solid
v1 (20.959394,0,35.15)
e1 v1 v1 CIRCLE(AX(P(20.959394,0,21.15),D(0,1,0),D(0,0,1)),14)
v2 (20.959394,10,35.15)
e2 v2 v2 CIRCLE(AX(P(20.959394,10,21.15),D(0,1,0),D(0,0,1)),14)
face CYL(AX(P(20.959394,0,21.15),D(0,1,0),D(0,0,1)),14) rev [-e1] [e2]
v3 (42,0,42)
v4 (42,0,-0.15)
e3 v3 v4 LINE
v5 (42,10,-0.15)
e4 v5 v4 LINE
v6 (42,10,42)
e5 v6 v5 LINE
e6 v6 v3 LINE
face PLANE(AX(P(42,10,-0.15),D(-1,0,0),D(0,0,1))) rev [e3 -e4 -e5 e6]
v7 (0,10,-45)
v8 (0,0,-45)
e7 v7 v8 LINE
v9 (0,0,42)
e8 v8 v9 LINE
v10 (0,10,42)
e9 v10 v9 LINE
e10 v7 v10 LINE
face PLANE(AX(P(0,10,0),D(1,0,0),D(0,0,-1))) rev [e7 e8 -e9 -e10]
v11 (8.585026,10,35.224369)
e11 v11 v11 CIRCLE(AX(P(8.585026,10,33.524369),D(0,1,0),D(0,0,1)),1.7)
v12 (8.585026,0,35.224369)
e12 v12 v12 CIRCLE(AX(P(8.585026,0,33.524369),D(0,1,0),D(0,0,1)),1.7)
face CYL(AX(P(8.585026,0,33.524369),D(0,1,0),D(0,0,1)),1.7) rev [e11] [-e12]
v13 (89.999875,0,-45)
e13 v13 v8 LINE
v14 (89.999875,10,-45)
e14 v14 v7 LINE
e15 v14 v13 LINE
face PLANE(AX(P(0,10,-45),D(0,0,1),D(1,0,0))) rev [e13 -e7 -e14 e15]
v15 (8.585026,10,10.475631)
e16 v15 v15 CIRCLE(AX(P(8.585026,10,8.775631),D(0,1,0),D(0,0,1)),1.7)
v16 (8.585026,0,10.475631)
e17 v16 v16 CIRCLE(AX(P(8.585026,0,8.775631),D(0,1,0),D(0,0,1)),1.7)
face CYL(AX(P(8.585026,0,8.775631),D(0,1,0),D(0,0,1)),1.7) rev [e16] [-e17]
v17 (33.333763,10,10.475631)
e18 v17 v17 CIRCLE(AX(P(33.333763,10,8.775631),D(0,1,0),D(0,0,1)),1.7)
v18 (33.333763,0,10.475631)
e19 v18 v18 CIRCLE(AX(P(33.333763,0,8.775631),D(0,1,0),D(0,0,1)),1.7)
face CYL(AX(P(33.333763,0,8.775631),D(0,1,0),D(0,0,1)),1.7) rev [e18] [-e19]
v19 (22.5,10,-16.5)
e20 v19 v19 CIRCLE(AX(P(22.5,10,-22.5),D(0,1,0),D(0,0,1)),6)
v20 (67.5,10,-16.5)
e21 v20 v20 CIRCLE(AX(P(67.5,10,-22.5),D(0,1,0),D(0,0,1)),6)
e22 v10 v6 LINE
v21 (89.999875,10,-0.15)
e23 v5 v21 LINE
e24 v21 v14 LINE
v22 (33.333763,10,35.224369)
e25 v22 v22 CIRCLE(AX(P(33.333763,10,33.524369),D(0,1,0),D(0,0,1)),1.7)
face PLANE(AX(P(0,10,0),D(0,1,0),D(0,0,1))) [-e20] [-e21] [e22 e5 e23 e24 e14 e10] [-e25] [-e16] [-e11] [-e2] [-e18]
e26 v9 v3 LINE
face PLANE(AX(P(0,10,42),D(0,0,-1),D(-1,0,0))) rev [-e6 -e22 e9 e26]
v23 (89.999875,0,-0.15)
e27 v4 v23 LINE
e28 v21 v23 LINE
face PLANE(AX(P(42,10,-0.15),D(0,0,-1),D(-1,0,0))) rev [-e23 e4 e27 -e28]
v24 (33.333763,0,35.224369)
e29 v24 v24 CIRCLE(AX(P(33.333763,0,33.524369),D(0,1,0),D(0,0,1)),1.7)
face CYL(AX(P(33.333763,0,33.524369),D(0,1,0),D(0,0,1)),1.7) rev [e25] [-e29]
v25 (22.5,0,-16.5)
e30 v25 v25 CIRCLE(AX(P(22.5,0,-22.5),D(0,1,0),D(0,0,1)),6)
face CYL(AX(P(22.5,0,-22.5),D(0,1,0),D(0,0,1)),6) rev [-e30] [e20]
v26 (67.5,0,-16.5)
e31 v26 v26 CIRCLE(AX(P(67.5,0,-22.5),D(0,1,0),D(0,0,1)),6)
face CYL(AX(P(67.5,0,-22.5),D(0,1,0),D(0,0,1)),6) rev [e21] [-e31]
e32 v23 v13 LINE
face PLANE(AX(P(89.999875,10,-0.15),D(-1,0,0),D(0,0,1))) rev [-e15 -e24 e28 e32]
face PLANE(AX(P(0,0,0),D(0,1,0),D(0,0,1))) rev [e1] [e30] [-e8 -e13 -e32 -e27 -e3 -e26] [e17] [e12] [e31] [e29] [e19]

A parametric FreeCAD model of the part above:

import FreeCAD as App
import Part
import Sketcher

V = App.Vector
Q = App.Units.Quantity

doc = App.newDocument("Part")
body = doc.addObject("PartDesign::Body", "Body")

sketch1 = body.newObject("Sketcher::SketchObject", "Sketch")
sketch1.AttachmentSupport = (doc.getObject("XZ_Plane"), [""])
sketch1.MapMode = "FlatFace"
sketch1.addGeometry([
    Part.LineSegment(V(42, 0, 0), V(90, 0, 0)),
    Part.LineSegment(V(90, 0, 0), V(90, -45, 0)),
    Part.LineSegment(V(90, -45, 0), V(0, -45, 0)),
    Part.LineSegment(V(0, -45, 0), V(0, 42, 0)),
    Part.LineSegment(V(0, 42, 0), V(42, 42, 0)),
    Part.LineSegment(V(42, 42, 0), V(42, 0, 0)),
], False)
sketch1.addConstraint([
    Sketcher.Constraint("Coincident", 0, 2, 1, 1),
    Sketcher.Constraint("Coincident", 1, 2, 2, 1),
    Sketcher.Constraint("Coincident", 2, 2, 3, 1),
    Sketcher.Constraint("Coincident", 3, 2, 4, 1),
    Sketcher.Constraint("Coincident", 4, 2, 5, 1),
    Sketcher.Constraint("Coincident", 5, 2, 0, 1),
    Sketcher.Constraint("Horizontal", 0),
    Sketcher.Constraint("Vertical", 1),
    Sketcher.Constraint("Horizontal", 2),
    Sketcher.Constraint("Vertical", 3),
    Sketcher.Constraint("Horizontal", 4),
    Sketcher.Constraint("Vertical", 5),
    Sketcher.Constraint("PointOnObject", 2, 2, -2),
    Sketcher.Constraint("DistanceX", 4, 1, 4, 2, Q("42 mm")),
    Sketcher.Constraint("DistanceY", 3, 1, 3, 2, Q("87 mm")),
    Sketcher.Constraint("DistanceY", 1, 2, -1, 1, Q("45 mm")),
    Sketcher.Constraint("DistanceY", 1, 2, 1, 1, Q("44.85 mm")),
    Sketcher.Constraint("DistanceX", 0, 1, 0, 2, Q("47.999875 mm")),
])
pad1 = body.newObject("PartDesign::Pad", "Pad")
pad1.Profile = sketch1
pad1.Length = 10
pad1.Reversed = True

sketch2 = body.newObject("Sketcher::SketchObject", "Sketch001")
sketch2.AttachmentSupport = (doc.getObject("XZ_Plane"), [""])
sketch2.MapMode = "FlatFace"
sketch2.AttachmentOffset = App.Placement(V(0, 0, -10), App.Rotation())
sketch2.addGeometry([
    Part.Circle(V(68, -22, 0), V(0, 0, 1), 6),
    Part.Circle(V(22, -22, 0), V(0, 0, 1), 6),
], False)
sketch2.addConstraint([
    Sketcher.Constraint("Equal", 0, 1),
    Sketcher.Constraint("Horizontal", 0, 3, 1, 3),
    Sketcher.Constraint("Diameter", 0, Q("12 mm")),
    Sketcher.Constraint("DistanceX", 1, 3, 0, 3, Q("45 mm")),
    Sketcher.Constraint("DistanceX", -1, 1, 0, 3, Q("67.5 mm")),
    Sketcher.Constraint("DistanceY", 0, 3, -1, 1, Q("22.5 mm")),
])
pocket1 = body.newObject("PartDesign::Pocket", "Pocket")
pocket1.Profile = sketch2
pocket1.Type = "ThroughAll"
pocket1.Reversed = True

sketch3 = body.newObject("Sketcher::SketchObject", "Sketch002")
sketch3.AttachmentSupport = (doc.getObject("XZ_Plane"), [""])
sketch3.MapMode = "FlatFace"
sketch3.AttachmentOffset = App.Placement(V(0, 0, -10), App.Rotation())
sketch3.addGeometry([
    Part.Circle(V(21, 21.1, 0), V(0, 0, 1), 14),
    Part.Circle(V(33.3, 33.5, 0), V(0, 0, 1), 1.7),
    Part.Circle(V(8.6, 33.5, 0), V(0, 0, 1), 1.7),
    Part.Circle(V(8.6, 8.8, 0), V(0, 0, 1), 1.7),
    Part.Circle(V(33.3, 8.8, 0), V(0, 0, 1), 1.7),
], False)
sketch3.addConstraint([
    Sketcher.Constraint("Equal", 1, 2),
    Sketcher.Constraint("Equal", 2, 3),
    Sketcher.Constraint("Equal", 3, 4),
    Sketcher.Constraint("Horizontal", 1, 3, 2, 3),
    Sketcher.Constraint("Horizontal", 3, 3, 4, 3),
    Sketcher.Constraint("Vertical", 2, 3, 3, 3),
    Sketcher.Constraint("Vertical", 1, 3, 4, 3),
    Sketcher.Constraint("Diameter", 0, Q("28 mm")),
    Sketcher.Constraint("Diameter", 1, Q("3.4 mm")),
    Sketcher.Constraint("DistanceY", -1, 1, 0, 3, Q("21.15 mm")),
    Sketcher.Constraint("DistanceY", -1, 1, 1, 3, Q("33.524369 mm")),
    Sketcher.Constraint("DistanceY", -1, 1, 3, 3, Q("8.775631 mm")),
    Sketcher.Constraint("DistanceX", 0, 3, 1, 3, Q("12.374369 mm")),
    Sketcher.Constraint("DistanceX", 2, 3, 0, 3, Q("12.374369 mm")),
    Sketcher.Constraint("DistanceX", -1, 1, 0, 3, Q("20.959394 mm")),
])
pocket2 = body.newObject("PartDesign::Pocket", "Pocket001")
pocket2.Profile = sketch3
pocket2.Type = "ThroughAll"
pocket2.Reversed = True

doc.recompute()
